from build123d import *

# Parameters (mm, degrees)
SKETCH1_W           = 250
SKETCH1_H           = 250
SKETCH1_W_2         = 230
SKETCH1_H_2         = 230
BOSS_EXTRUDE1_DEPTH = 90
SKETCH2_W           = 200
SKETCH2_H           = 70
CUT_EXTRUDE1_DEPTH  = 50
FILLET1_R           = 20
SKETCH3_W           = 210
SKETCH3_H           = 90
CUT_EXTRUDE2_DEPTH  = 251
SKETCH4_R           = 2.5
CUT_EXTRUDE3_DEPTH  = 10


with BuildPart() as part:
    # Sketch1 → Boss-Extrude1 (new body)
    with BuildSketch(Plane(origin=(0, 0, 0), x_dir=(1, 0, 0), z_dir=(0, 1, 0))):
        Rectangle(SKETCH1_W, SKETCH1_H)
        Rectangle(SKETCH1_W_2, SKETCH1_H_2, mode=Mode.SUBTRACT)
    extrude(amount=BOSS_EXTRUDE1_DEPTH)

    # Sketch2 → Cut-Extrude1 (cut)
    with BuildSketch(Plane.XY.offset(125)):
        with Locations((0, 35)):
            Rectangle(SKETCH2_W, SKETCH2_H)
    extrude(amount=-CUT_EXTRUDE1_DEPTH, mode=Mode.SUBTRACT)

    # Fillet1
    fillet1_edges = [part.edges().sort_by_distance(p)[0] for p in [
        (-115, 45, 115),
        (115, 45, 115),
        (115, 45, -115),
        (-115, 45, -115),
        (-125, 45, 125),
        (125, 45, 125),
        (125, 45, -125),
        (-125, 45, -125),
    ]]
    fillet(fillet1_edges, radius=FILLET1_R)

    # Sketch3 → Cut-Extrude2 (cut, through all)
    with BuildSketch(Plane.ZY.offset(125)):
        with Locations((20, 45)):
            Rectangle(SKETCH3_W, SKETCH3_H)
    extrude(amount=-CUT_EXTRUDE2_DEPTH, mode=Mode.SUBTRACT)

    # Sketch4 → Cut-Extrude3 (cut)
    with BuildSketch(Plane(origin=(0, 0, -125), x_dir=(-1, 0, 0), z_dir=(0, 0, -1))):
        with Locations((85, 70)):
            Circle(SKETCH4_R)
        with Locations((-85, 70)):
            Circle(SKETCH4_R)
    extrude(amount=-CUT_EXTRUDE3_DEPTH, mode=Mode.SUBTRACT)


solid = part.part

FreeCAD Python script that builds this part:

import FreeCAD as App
import Part
import Sketcher
from FreeCAD import Vector
Q = App.Units.Quantity


def edges_at(feature, points):
    """Names of the edges that pass closest to the given points."""
    edges = feature.Shape.Edges
    near = lambda p: min(range(len(edges)), key=lambda i: edges[i].distToShape(Part.Vertex(*p))[0])
    return sorted({f"Edge{near(p) + 1}" for p in points})

doc = App.newDocument("Part")
body = doc.addObject("PartDesign::Body", "Body")

# Sketch on XZ plane
sketch1 = body.newObject("Sketcher::SketchObject", "Sketch")
sketch1.AttachmentSupport = (doc.getObject("XZ_Plane"), [""])
sketch1.MapMode = "FlatFace"
sketch1.addGeometry(Part.LineSegment(Vector(-125, -125, 0), Vector(-125, 125, 0)), False)
sketch1.addGeometry(Part.LineSegment(Vector(-125, 125, 0), Vector(125, 125, 0)), False)
sketch1.addGeometry(Part.LineSegment(Vector(125, 125, 0), Vector(125, -125, 0)), False)
sketch1.addGeometry(Part.LineSegment(Vector(125, -125, 0), Vector(-125, -125, 0)), False)
sketch1.addGeometry(Part.LineSegment(Vector(115, 115, 0), Vector(-115, 115, 0)), False)
sketch1.addGeometry(Part.LineSegment(Vector(-115, 115, 0), Vector(-115, -115, 0)), False)
sketch1.addGeometry(Part.LineSegment(Vector(-115, -115, 0), Vector(115, -115, 0)), False)
sketch1.addGeometry(Part.LineSegment(Vector(115, -115, 0), Vector(115, 115, 0)), False)
sketch1.addConstraint(Sketcher.Constraint("Coincident", 0, 2, 1, 1))
sketch1.addConstraint(Sketcher.Constraint("Coincident", 1, 2, 2, 1))
sketch1.addConstraint(Sketcher.Constraint("Coincident", 2, 2, 3, 1))
sketch1.addConstraint(Sketcher.Constraint("Coincident", 3, 2, 0, 1))
sketch1.addConstraint(Sketcher.Constraint("Coincident", 4, 2, 5, 1))
sketch1.addConstraint(Sketcher.Constraint("Coincident", 5, 2, 6, 1))
sketch1.addConstraint(Sketcher.Constraint("Coincident", 6, 2, 7, 1))
sketch1.addConstraint(Sketcher.Constraint("Coincident", 7, 2, 4, 1))
sketch1.addConstraint(Sketcher.Constraint("Vertical", 0))
sketch1.addConstraint(Sketcher.Constraint("Horizontal", 1))
sketch1.addConstraint(Sketcher.Constraint("Vertical", 2))
sketch1.addConstraint(Sketcher.Constraint("Horizontal", 3))
sketch1.addConstraint(Sketcher.Constraint("Horizontal", 4))
sketch1.addConstraint(Sketcher.Constraint("Vertical", 5))
sketch1.addConstraint(Sketcher.Constraint("Horizontal", 6))
sketch1.addConstraint(Sketcher.Constraint("Vertical", 7))
sketch1.addConstraint(Sketcher.Constraint("Symmetric", 0, 2, 2, 2, -1, 1))
sketch1.addConstraint(Sketcher.Constraint("Symmetric", 4, 2, 6, 2, -1, 1))
sketch1.addConstraint(Sketcher.Constraint("Equal", 3, 0))
sketch1.addConstraint(Sketcher.Constraint("Equal", 6, 5))
sketch1.addConstraint(Sketcher.Constraint("DistanceX", 1, 1, 1, 2, Q("250 mm")))
sketch1.addConstraint(Sketcher.Constraint("DistanceX", 4, 2, 4, 1, Q("230 mm")))
pad1 = body.newObject("PartDesign::Pad", "Pad")
pad1.Profile = sketch1
pad1.Length = 90
pad1.Reversed = True

# Sketch on XY plane
sketch2 = body.newObject("Sketcher::SketchObject", "Sketch001")
sketch2.AttachmentSupport = (doc.getObject("XY_Plane"), [""])
sketch2.MapMode = "FlatFace"
sketch2.AttachmentOffset = App.Placement(Vector(0, 0, 125), App.Rotation())
sketch2.addGeometry(Part.LineSegment(Vector(-100, 70, 0), Vector(-100, 0, 0)), False)
sketch2.addGeometry(Part.LineSegment(Vector(-100, 0, 0), Vector(100, 0, 0)), False)
sketch2.addGeometry(Part.LineSegment(Vector(100, 0, 0), Vector(100, 70, 0)), False)
sketch2.addGeometry(Part.LineSegment(Vector(100, 70, 0), Vector(-100, 70, 0)), False)
sketch2.addConstraint(Sketcher.Constraint("Coincident", 0, 2, 1, 1))
sketch2.addConstraint(Sketcher.Constraint("Coincident", 1, 2, 2, 1))
sketch2.addConstraint(Sketcher.Constraint("Coincident", 2, 2, 3, 1))
sketch2.addConstraint(Sketcher.Constraint("Coincident", 3, 2, 0, 1))
sketch2.addConstraint(Sketcher.Constraint("Vertical", 0))
sketch2.addConstraint(Sketcher.Constraint("Horizontal", 1))
sketch2.addConstraint(Sketcher.Constraint("Vertical", 2))
sketch2.addConstraint(Sketcher.Constraint("Horizontal", 3))
sketch2.addConstraint(Sketcher.Constraint("Symmetric", 0, 2, 1, 2, -1, 1))
sketch2.addConstraint(Sketcher.Constraint("DistanceX", 1, 1, 1, 2, Q("200 mm")))
sketch2.addConstraint(Sketcher.Constraint("DistanceY", 0, 2, 0, 1, Q("70 mm")))
pocket1 = body.newObject("PartDesign::Pocket", "Pocket")
pocket1.Profile = sketch2
pocket1.Length = 50
doc.recompute()

fillet = body.newObject("PartDesign::Fillet", "Fillet")
fillet.Base = (pocket1, edges_at(pocket1, [
    (-115, 45, 115),
    (115, 45, 115),
    (115, 45, -115),
    (-115, 45, -115),
    (-125, 45, 125),
    (125, 45, 125),
    (125, 45, -125),
    (-125, 45, -125),
]))
fillet.Radius = 20

# Sketch on YZ plane
sketch3 = body.newObject("Sketcher::SketchObject", "Sketch002")
sketch3.AttachmentSupport = (doc.getObject("YZ_Plane"), [""])
sketch3.MapMode = "FlatFace"
sketch3.AttachmentOffset = App.Placement(Vector(0, 0, -125), App.Rotation())
sketch3.addGeometry(Part.LineSegment(Vector(90, -85, 0), Vector(0, -85, 0)), False)
sketch3.addGeometry(Part.LineSegment(Vector(0, -85, 0), Vector(0, 125, 0)), False)
sketch3.addGeometry(Part.LineSegment(Vector(0, 125, 0), Vector(90, 125, 0)), False)
sketch3.addGeometry(Part.LineSegment(Vector(90, 125, 0), Vector(90, -85, 0)), False)
sketch3.addConstraint(Sketcher.Constraint("Coincident", 0, 2, 1, 1))
sketch3.addConstraint(Sketcher.Constraint("Coincident", 1, 2, 2, 1))
sketch3.addConstraint(Sketcher.Constraint("Coincident", 2, 2, 3, 1))
sketch3.addConstraint(Sketcher.Constraint("Coincident", 3, 2, 0, 1))
sketch3.addConstraint(Sketcher.Constraint("Horizontal", 0))
sketch3.addConstraint(Sketcher.Constraint("Vertical", 1))
sketch3.addConstraint(Sketcher.Constraint("Horizontal", 2))
sketch3.addConstraint(Sketcher.Constraint("Vertical", 3))
sketch3.addConstraint(Sketcher.Constraint("PointOnObject", 0, 2, -2))
sketch3.addConstraint(Sketcher.Constraint("DistanceX", 0, 2, 0, 1, Q("90 mm")))
sketch3.addConstraint(Sketcher.Constraint("DistanceY", 1, 1, 1, 2, Q("210 mm")))
sketch3.addConstraint(Sketcher.Constraint("DistanceY", 0, 2, -1, 1, Q("85 mm")))
pocket2 = body.newObject("PartDesign::Pocket", "Pocket001")
pocket2.Profile = sketch3
pocket2.Type = "ThroughAll"
pocket2.Reversed = True

# Sketch on XY plane
sketch4 = body.newObject("Sketcher::SketchObject", "Sketch003")
sketch4.AttachmentSupport = (doc.getObject("XY_Plane"), [""])
sketch4.MapMode = "FlatFace"
sketch4.AttachmentOffset = App.Placement(Vector(0, 0, -125), App.Rotation())
sketch4.addGeometry(Part.Circle(Vector(-85, 70, 0), Vector(0, 0, 1), 2.5), False)
sketch4.addGeometry(Part.Circle(Vector(85, 70, 0), Vector(0, 0, 1), 2.5), False)
sketch4.addConstraint(Sketcher.Constraint("Equal", 0, 1))
sketch4.addConstraint(Sketcher.Constraint("Symmetric", 0, 3, 1, 3, -2))
sketch4.addConstraint(Sketcher.Constraint("Diameter", 0, Q("5 mm")))
sketch4.addConstraint(Sketcher.Constraint("DistanceX", 0, 3, -1, 1, Q("85 mm")))
sketch4.addConstraint(Sketcher.Constraint("DistanceY", -1, 1, 0, 3, Q("70 mm")))
pocket3 = body.newObject("PartDesign::Pocket", "Pocket002")
pocket3.Profile = sketch4
pocket3.Length = 10
pocket3.Reversed = True

doc.recompute()
